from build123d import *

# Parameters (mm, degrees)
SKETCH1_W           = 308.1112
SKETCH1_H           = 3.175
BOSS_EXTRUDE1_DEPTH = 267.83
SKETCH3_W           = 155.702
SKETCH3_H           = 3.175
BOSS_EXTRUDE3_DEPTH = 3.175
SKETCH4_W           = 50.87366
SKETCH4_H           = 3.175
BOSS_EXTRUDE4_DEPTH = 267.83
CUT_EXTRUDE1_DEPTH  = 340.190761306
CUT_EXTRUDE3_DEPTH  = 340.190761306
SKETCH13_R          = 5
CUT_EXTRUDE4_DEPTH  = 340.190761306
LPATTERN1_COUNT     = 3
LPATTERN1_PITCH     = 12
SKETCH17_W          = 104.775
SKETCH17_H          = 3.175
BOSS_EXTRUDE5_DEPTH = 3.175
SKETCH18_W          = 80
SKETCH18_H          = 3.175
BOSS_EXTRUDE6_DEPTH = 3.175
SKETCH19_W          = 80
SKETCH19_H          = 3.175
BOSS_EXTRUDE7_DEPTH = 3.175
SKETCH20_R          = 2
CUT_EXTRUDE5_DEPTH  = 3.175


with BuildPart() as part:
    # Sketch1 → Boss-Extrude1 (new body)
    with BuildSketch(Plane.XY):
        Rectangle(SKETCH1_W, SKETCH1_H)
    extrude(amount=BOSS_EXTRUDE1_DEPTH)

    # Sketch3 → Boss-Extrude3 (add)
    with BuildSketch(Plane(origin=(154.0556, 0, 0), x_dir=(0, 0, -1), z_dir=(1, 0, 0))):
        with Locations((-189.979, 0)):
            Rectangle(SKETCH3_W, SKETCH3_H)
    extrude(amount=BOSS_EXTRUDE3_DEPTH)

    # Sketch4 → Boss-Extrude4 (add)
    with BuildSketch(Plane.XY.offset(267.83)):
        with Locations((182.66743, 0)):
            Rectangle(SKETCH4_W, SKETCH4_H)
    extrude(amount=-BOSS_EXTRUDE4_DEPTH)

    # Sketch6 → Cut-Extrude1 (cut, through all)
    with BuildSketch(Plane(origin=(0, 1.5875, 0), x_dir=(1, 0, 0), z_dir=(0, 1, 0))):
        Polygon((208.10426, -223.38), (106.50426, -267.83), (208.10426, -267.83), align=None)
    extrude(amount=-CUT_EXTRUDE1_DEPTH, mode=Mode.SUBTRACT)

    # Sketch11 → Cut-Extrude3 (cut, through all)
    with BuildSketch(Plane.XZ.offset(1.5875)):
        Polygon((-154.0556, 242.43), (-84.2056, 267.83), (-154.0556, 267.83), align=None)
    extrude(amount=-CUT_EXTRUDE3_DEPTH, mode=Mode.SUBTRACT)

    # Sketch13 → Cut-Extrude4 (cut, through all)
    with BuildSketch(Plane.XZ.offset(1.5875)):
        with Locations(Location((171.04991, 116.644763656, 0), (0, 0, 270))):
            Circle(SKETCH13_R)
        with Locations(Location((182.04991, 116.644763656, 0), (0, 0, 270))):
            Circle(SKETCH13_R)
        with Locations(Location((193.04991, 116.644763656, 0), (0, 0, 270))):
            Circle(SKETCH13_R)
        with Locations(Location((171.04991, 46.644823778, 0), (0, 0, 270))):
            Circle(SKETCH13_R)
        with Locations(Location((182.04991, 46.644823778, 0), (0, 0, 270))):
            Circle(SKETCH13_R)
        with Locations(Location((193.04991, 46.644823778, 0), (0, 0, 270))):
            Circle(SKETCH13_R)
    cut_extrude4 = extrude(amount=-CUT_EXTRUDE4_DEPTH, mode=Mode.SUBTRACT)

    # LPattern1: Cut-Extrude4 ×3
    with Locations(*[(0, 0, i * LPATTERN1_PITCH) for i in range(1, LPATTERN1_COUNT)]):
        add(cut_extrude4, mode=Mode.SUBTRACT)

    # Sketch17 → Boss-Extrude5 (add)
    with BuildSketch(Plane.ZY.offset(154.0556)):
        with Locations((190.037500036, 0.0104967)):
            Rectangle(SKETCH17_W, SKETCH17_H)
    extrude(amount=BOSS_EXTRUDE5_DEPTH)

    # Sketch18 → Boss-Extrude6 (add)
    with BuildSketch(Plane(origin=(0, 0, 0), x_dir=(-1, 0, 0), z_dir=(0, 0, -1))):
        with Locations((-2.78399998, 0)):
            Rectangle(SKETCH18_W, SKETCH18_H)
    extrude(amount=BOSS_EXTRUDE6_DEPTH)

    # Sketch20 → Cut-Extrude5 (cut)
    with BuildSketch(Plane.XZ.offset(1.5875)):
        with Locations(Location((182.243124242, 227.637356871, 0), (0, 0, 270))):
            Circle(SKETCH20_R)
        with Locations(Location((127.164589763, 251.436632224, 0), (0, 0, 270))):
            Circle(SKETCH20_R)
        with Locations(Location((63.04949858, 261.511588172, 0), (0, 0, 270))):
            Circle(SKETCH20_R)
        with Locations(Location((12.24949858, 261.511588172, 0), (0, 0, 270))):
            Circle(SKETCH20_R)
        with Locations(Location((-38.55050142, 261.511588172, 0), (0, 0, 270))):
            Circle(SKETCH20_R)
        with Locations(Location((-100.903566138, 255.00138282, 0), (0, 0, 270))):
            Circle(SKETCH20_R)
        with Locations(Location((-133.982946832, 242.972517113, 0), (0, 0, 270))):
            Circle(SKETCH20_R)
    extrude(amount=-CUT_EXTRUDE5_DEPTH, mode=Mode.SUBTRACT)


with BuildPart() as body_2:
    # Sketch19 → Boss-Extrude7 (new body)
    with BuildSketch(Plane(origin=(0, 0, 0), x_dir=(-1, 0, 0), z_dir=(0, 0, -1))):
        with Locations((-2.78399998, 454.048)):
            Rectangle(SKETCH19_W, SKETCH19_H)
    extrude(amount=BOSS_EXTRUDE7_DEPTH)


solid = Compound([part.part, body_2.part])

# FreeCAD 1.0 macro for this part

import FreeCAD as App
import Part
import Sketcher

V = App.Vector
Q = App.Units.Quantity


def add_polygon(sketch, points):
    """Adds a closed chain of lines whose ends are joined by coincident constraints."""
    first, n = sketch.GeometryCount, len(points)
    for a, b in zip(points, points[1:] + points[:1]):
        sketch.addGeometry(Part.LineSegment(App.Vector(*a, 0), App.Vector(*b, 0)), False)
    for i in range(n):
        sketch.addConstraint(Sketcher.Constraint("Coincident", first + i, 2, first + (i + 1) % n, 1))

doc = App.newDocument("Part")
body = doc.addObject("PartDesign::Body", "Body")

sketch1 = body.newObject("Sketcher::SketchObject", "Sketch")
sketch1.AttachmentSupport = (doc.getObject("XY_Plane"), [""])
sketch1.MapMode = "FlatFace"
add_polygon(sketch1, [(-154.0556, 1.5875), (-154.0556, -1.5875), (154.0556, -1.5875), (154.0556, 1.5875)])
sketch1.addConstraint([
    Sketcher.Constraint("Vertical", 0),
    Sketcher.Constraint("Horizontal", 1),
    Sketcher.Constraint("Vertical", 2),
    Sketcher.Constraint("Horizontal", 3),
    Sketcher.Constraint("Symmetric", 0, 2, 2, 2, -1, 1),
    Sketcher.Constraint("DistanceY", 0, 2, 0, 1, Q("0.125 in")),
    Sketcher.Constraint("DistanceX", 1, 1, 1, 2, Q("308.1112 mm")),
])
pad1 = body.newObject("PartDesign::Pad", "Pad")
pad1.Profile = sketch1
pad1.Length = 267.83

sketch2 = body.newObject("Sketcher::SketchObject", "Sketch001")
sketch2.AttachmentSupport = (doc.getObject("YZ_Plane"), [""])
sketch2.MapMode = "FlatFace"
sketch2.AttachmentOffset = App.Placement(V(0, 0, 154.0556), App.Rotation())
add_polygon(sketch2, [(1.5875, 267.83), (-1.5875, 267.83), (-1.5875, 112.128), (1.5875, 112.128)])
sketch2.addConstraint([
    Sketcher.Constraint("Horizontal", 0),
    Sketcher.Constraint("Vertical", 1),
    Sketcher.Constraint("Horizontal", 2),
    Sketcher.Constraint("Vertical", 3),
    Sketcher.Constraint("DistanceY", 1, 2, 1, 1, Q("6.13 in")),
    Sketcher.Constraint("DistanceX", 0, 2, 0, 1, Q("0.125 in")),
    Sketcher.Constraint("DistanceX", 0, 2, -1, 1, Q("0.0625 in")),
    Sketcher.Constraint("DistanceY", -1, 1, 0, 2, Q("267.83 mm")),
])
pad2 = body.newObject("PartDesign::Pad", "Pad001")
pad2.Profile = sketch2
pad2.Length = Q("0.125 in")

sketch3 = body.newObject("Sketcher::SketchObject", "Sketch002")
sketch3.AttachmentSupport = (doc.getObject("XY_Plane"), [""])
sketch3.MapMode = "FlatFace"
sketch3.AttachmentOffset = App.Placement(V(0, 0, 267.83), App.Rotation())
add_polygon(sketch3, [(157.2306, 1.5875), (157.2306, -1.5875), (208.10426, -1.5875), (208.10426, 1.5875)])
sketch3.addConstraint([
    Sketcher.Constraint("Vertical", 0),
    Sketcher.Constraint("Horizontal", 1),
    Sketcher.Constraint("Vertical", 2),
    Sketcher.Constraint("Horizontal", 3),
    Sketcher.Constraint("DistanceY", 0, 2, 0, 1, Q("0.125 in")),
    Sketcher.Constraint("DistanceX", 1, 1, 1, 2, Q("2.0029 in")),
    Sketcher.Constraint("DistanceY", 0, 2, -1, 1, Q("0.0625 in")),
    Sketcher.Constraint("DistanceX", -1, 1, 0, 2, Q("157.2306 mm")),
])
pad3 = body.newObject("PartDesign::Pad", "Pad002")
pad3.Profile = sketch3
pad3.Length = 267.83
pad3.Reversed = True

sketch4 = body.newObject("Sketcher::SketchObject", "Sketch003")
sketch4.AttachmentSupport = (doc.getObject("XZ_Plane"), [""])
sketch4.MapMode = "FlatFace"
sketch4.AttachmentOffset = App.Placement(V(0, 0, -0.0625 * 25.4), App.Rotation())
add_polygon(sketch4, [(208.10426, 223.38), (106.50426, 267.83), (208.10426, 267.83)])
sketch4.addConstraint([
    Sketcher.Constraint("Horizontal", 1),
    Sketcher.Constraint("Vertical", 2),
    Sketcher.Constraint("DistanceX", 1, 1, 1, 2, Q("4 in")),
    Sketcher.Constraint("DistanceY", 2, 2, 2, 1, Q("1.75 in")),
    Sketcher.Constraint("DistanceY", -1, 1, 0, 2, Q("267.83 mm")),
    Sketcher.Constraint("DistanceX", -1, 1, 0, 2, Q("106.50426 mm")),
])
pocket1 = body.newObject("PartDesign::Pocket", "Pocket")
pocket1.Profile = sketch4
pocket1.Type = "ThroughAll"
pocket1.Reversed = True

sketch5 = body.newObject("Sketcher::SketchObject", "Sketch004")
sketch5.AttachmentSupport = (doc.getObject("XZ_Plane"), [""])
sketch5.MapMode = "FlatFace"
sketch5.AttachmentOffset = App.Placement(V(0, 0, 0.0625 * 25.4), App.Rotation())
add_polygon(sketch5, [(-154.0556, 242.43), (-84.2056, 267.83), (-154.0556, 267.83)])
sketch5.addConstraint([
    Sketcher.Constraint("Horizontal", 1),
    Sketcher.Constraint("Vertical", 2),
    Sketcher.Constraint("DistanceY", 2, 2, 2, 1, Q("1 in")),
    Sketcher.Constraint("DistanceX", 1, 2, 1, 1, Q("2.75 in")),
    Sketcher.Constraint("DistanceX", 0, 2, -1, 1, Q("84.2056 mm")),
    Sketcher.Constraint("DistanceY", -1, 1, 0, 2, Q("267.83 mm")),
])
pocket2 = body.newObject("PartDesign::Pocket", "Pocket001")
pocket2.Profile = sketch5
pocket2.Type = "ThroughAll"

sketch6 = body.newObject("Sketcher::SketchObject", "Sketch005")
sketch6.AttachmentSupport = (doc.getObject("XZ_Plane"), [""])
sketch6.MapMode = "FlatFace"
sketch6.AttachmentOffset = App.Placement(V(0, 0, 0.0625 * 25.4), App.Rotation())
sketch6.addGeometry([
    Part.Circle(V(171.04991, 116.644764, 0), V(0, 0, 1), 5),
    Part.Circle(V(182.04991, 116.644764, 0), V(0, 0, 1), 5),
    Part.Circle(V(193.04991, 116.644764, 0), V(0, 0, 1), 5),
    Part.Circle(V(171.04991, 46.644824, 0), V(0, 0, 1), 5),
    Part.Circle(V(182.04991, 46.644824, 0), V(0, 0, 1), 5),
    Part.Circle(V(193.04991, 46.644824, 0), V(0, 0, 1), 5),
], False)
sketch6.addConstraint([
    Sketcher.Constraint("Equal", 0, 1),
    Sketcher.Constraint("Equal", 1, 2),
    Sketcher.Constraint("Equal", 2, 3),
    Sketcher.Constraint("Equal", 3, 4),
    Sketcher.Constraint("Equal", 4, 5),
    Sketcher.Constraint("Horizontal", 0, 3, 1, 3),
    Sketcher.Constraint("Horizontal", 1, 3, 2, 3),
    Sketcher.Constraint("Horizontal", 3, 3, 4, 3),
    Sketcher.Constraint("Horizontal", 4, 3, 5, 3),
    Sketcher.Constraint("Vertical", 0, 3, 3, 3),
    Sketcher.Constraint("Vertical", 1, 3, 4, 3),
    Sketcher.Constraint("Vertical", 2, 3, 5, 3),
    Sketcher.Constraint("Diameter", 0, Q("10 mm")),
    Sketcher.Constraint("DistanceX", 0, 3, 1, 3, Q("11 mm")),
    Sketcher.Constraint("DistanceX", 1, 3, 2, 3, Q("11 mm")),
    Sketcher.Constraint("DistanceX", -1, 1, 0, 3, Q("171.04991 mm")),
    Sketcher.Constraint("DistanceY", 3, 3, 0, 3, Q("69.99994 mm")),
    Sketcher.Constraint("DistanceY", -1, 1, 0, 3, Q("116.644764 mm")),
])
pocket3 = body.newObject("PartDesign::Pocket", "Pocket002")
pocket3.Profile = sketch6
pocket3.Type = "ThroughAll"
doc.recompute()

linearpattern = body.newObject("PartDesign::LinearPattern", "LinearPattern")
linearpattern.Originals = [pocket3]
linearpattern.Direction = (doc.getObject("Z_Axis"), [""])
linearpattern.Mode = "offset"
linearpattern.Offset = 12
linearpattern.Occurrences = 3
body.Tip = linearpattern

sketch7 = body.newObject("Sketcher::SketchObject", "Sketch006")
sketch7.AttachmentSupport = (doc.getObject("YZ_Plane"), [""])
sketch7.MapMode = "FlatFace"
sketch7.AttachmentOffset = App.Placement(V(0, 0, -154.0556), App.Rotation())
add_polygon(sketch7, [(1.597997, 137.65), (-1.577003, 137.65), (-1.577003, 242.425), (1.597997, 242.425)])
sketch7.addConstraint([
    Sketcher.Constraint("Horizontal", 0),
    Sketcher.Constraint("Vertical", 1),
    Sketcher.Constraint("Horizontal", 2),
    Sketcher.Constraint("Vertical", 3),
    Sketcher.Constraint("DistanceX", 0, 2, 0, 1, Q("0.125 in")),
    Sketcher.Constraint("DistanceY", 1, 1, 1, 2, Q("4.125 in")),
    Sketcher.Constraint("DistanceY", -1, 1, 0, 2, Q("137.65 mm")),
    Sketcher.Constraint("DistanceX", 0, 2, -1, 1, Q("1.577003 mm")),
])
pad4 = body.newObject("PartDesign::Pad", "Pad003")
pad4.Profile = sketch7
pad4.Length = Q("0.125 in")
pad4.Reversed = True

sketch8 = body.newObject("Sketcher::SketchObject", "Sketch007")
sketch8.AttachmentSupport = (doc.getObject("XY_Plane"), [""])
sketch8.MapMode = "FlatFace"
add_polygon(sketch8, [(42.784, 1.5875), (42.784, -1.5875), (-37.216, -1.5875), (-37.216, 1.5875)])
sketch8.addConstraint([
    Sketcher.Constraint("Vertical", 0),
    Sketcher.Constraint("Horizontal", 1),
    Sketcher.Constraint("Vertical", 2),
    Sketcher.Constraint("Horizontal", 3),
    Sketcher.Constraint("DistanceY", 0, 2, 0, 1, Q("0.125 in")),
    Sketcher.Constraint("DistanceY", 0, 2, -1, 1, Q("0.0625 in")),
    Sketcher.Constraint("DistanceX", 1, 2, 1, 1, Q("80 mm")),
    Sketcher.Constraint("DistanceX", -1, 1, 0, 2, Q("42.784 mm")),
])
pad5 = body.newObject("PartDesign::Pad", "Pad004")
pad5.Profile = sketch8
pad5.Length = Q("0.125 in")
pad5.Reversed = True

sketch9 = body.newObject("Sketcher::SketchObject", "Sketch008")
sketch9.AttachmentSupport = (doc.getObject("XZ_Plane"), [""])
sketch9.MapMode = "FlatFace"
sketch9.AttachmentOffset = App.Placement(V(0, 0, 0.0625 * 25.4), App.Rotation())
sketch9.addGeometry([
    Part.Circle(V(182.243124, 227.637357, 0), V(0, 0, 1), 2),
    Part.Circle(V(127.16459, 251.436632, 0), V(0, 0, 1), 2),
    Part.Circle(V(63.049499, 261.511588, 0), V(0, 0, 1), 2),
    Part.Circle(V(12.249499, 261.511588, 0), V(0, 0, 1), 2),
    Part.Circle(V(-38.550501, 261.511588, 0), V(0, 0, 1), 2),
    Part.Circle(V(-100.903566, 255.001383, 0), V(0, 0, 1), 2),
    Part.Circle(V(-133.982947, 242.972517, 0), V(0, 0, 1), 2),
], False)
sketch9.addConstraint([
    Sketcher.Constraint("Equal", 0, 1),
    Sketcher.Constraint("Equal", 1, 2),
    Sketcher.Constraint("Equal", 2, 3),
    Sketcher.Constraint("Equal", 3, 4),
    Sketcher.Constraint("Equal", 4, 5),
    Sketcher.Constraint("Equal", 5, 6),
    Sketcher.Constraint("Horizontal", 2, 3, 3, 3),
    Sketcher.Constraint("Horizontal", 3, 3, 4, 3),
    Sketcher.Constraint("DistanceX", 3, 3, 2, 3, Q("2 in")),
    Sketcher.Constraint("DistanceX", 4, 3, 3, 3, Q("2 in")),
    Sketcher.Constraint("Diameter", 0, Q("4 mm")),
    Sketcher.Constraint("DistanceX", -1, 1, 2, 3, Q("63.049499 mm")),
    Sketcher.Constraint("DistanceX", -1, 1, 1, 3, Q("127.16459 mm")),
    Sketcher.Constraint("DistanceY", -1, 1, 2, 3, Q("261.511588 mm")),
    Sketcher.Constraint("DistanceY", 0, 3, 2, 3, Q("33.874231 mm")),
    Sketcher.Constraint("DistanceY", 1, 3, 5, 3, Q("3.564751 mm")),
    Sketcher.Constraint("DistanceX", 5, 3, 0, 3, Q("283.14669 mm")),
    Sketcher.Constraint("DistanceX", 6, 3, 5, 3, Q("33.079381 mm")),
    Sketcher.Constraint("DistanceY", 6, 3, 4, 3, Q("18.539071 mm")),
    Sketcher.Constraint("DistanceX", -1, 1, 0, 3, Q("182.243124 mm")),
    Sketcher.Constraint("DistanceY", -1, 1, 1, 3, Q("251.436632 mm")),
])
pocket4 = body.newObject("PartDesign::Pocket", "Pocket003")
pocket4.Profile = sketch9
pocket4.Length = Q("0.125 in")
body2 = doc.addObject("PartDesign::Body", "Body001")

sketch10 = body2.newObject("Sketcher::SketchObject", "Sketch009")
sketch10.AttachmentSupport = (doc.getObject("XY_Plane001"), [""])
sketch10.MapMode = "FlatFace"
add_polygon(sketch10, [(42.784, 455.6355), (42.784, 452.4605), (-37.216, 452.4605), (-37.216, 455.6355)])
sketch10.addConstraint([
    Sketcher.Constraint("Vertical", 0),
    Sketcher.Constraint("Horizontal", 1),
    Sketcher.Constraint("Vertical", 2),
    Sketcher.Constraint("Horizontal", 3),
    Sketcher.Constraint("DistanceY", 0, 2, 0, 1, Q("0.125 in")),
    Sketcher.Constraint("DistanceX", 1, 2, 1, 1, Q("80 mm")),
    Sketcher.Constraint("DistanceX", -1, 1, 0, 2, Q("42.784 mm")),
    Sketcher.Constraint("DistanceY", -1, 1, 0, 2, Q("452.4605 mm")),
])
pad6 = body2.newObject("PartDesign::Pad", "Pad005")
pad6.Profile = sketch10
pad6.Length = Q("0.125 in")
pad6.Reversed = True

doc.recompute()
